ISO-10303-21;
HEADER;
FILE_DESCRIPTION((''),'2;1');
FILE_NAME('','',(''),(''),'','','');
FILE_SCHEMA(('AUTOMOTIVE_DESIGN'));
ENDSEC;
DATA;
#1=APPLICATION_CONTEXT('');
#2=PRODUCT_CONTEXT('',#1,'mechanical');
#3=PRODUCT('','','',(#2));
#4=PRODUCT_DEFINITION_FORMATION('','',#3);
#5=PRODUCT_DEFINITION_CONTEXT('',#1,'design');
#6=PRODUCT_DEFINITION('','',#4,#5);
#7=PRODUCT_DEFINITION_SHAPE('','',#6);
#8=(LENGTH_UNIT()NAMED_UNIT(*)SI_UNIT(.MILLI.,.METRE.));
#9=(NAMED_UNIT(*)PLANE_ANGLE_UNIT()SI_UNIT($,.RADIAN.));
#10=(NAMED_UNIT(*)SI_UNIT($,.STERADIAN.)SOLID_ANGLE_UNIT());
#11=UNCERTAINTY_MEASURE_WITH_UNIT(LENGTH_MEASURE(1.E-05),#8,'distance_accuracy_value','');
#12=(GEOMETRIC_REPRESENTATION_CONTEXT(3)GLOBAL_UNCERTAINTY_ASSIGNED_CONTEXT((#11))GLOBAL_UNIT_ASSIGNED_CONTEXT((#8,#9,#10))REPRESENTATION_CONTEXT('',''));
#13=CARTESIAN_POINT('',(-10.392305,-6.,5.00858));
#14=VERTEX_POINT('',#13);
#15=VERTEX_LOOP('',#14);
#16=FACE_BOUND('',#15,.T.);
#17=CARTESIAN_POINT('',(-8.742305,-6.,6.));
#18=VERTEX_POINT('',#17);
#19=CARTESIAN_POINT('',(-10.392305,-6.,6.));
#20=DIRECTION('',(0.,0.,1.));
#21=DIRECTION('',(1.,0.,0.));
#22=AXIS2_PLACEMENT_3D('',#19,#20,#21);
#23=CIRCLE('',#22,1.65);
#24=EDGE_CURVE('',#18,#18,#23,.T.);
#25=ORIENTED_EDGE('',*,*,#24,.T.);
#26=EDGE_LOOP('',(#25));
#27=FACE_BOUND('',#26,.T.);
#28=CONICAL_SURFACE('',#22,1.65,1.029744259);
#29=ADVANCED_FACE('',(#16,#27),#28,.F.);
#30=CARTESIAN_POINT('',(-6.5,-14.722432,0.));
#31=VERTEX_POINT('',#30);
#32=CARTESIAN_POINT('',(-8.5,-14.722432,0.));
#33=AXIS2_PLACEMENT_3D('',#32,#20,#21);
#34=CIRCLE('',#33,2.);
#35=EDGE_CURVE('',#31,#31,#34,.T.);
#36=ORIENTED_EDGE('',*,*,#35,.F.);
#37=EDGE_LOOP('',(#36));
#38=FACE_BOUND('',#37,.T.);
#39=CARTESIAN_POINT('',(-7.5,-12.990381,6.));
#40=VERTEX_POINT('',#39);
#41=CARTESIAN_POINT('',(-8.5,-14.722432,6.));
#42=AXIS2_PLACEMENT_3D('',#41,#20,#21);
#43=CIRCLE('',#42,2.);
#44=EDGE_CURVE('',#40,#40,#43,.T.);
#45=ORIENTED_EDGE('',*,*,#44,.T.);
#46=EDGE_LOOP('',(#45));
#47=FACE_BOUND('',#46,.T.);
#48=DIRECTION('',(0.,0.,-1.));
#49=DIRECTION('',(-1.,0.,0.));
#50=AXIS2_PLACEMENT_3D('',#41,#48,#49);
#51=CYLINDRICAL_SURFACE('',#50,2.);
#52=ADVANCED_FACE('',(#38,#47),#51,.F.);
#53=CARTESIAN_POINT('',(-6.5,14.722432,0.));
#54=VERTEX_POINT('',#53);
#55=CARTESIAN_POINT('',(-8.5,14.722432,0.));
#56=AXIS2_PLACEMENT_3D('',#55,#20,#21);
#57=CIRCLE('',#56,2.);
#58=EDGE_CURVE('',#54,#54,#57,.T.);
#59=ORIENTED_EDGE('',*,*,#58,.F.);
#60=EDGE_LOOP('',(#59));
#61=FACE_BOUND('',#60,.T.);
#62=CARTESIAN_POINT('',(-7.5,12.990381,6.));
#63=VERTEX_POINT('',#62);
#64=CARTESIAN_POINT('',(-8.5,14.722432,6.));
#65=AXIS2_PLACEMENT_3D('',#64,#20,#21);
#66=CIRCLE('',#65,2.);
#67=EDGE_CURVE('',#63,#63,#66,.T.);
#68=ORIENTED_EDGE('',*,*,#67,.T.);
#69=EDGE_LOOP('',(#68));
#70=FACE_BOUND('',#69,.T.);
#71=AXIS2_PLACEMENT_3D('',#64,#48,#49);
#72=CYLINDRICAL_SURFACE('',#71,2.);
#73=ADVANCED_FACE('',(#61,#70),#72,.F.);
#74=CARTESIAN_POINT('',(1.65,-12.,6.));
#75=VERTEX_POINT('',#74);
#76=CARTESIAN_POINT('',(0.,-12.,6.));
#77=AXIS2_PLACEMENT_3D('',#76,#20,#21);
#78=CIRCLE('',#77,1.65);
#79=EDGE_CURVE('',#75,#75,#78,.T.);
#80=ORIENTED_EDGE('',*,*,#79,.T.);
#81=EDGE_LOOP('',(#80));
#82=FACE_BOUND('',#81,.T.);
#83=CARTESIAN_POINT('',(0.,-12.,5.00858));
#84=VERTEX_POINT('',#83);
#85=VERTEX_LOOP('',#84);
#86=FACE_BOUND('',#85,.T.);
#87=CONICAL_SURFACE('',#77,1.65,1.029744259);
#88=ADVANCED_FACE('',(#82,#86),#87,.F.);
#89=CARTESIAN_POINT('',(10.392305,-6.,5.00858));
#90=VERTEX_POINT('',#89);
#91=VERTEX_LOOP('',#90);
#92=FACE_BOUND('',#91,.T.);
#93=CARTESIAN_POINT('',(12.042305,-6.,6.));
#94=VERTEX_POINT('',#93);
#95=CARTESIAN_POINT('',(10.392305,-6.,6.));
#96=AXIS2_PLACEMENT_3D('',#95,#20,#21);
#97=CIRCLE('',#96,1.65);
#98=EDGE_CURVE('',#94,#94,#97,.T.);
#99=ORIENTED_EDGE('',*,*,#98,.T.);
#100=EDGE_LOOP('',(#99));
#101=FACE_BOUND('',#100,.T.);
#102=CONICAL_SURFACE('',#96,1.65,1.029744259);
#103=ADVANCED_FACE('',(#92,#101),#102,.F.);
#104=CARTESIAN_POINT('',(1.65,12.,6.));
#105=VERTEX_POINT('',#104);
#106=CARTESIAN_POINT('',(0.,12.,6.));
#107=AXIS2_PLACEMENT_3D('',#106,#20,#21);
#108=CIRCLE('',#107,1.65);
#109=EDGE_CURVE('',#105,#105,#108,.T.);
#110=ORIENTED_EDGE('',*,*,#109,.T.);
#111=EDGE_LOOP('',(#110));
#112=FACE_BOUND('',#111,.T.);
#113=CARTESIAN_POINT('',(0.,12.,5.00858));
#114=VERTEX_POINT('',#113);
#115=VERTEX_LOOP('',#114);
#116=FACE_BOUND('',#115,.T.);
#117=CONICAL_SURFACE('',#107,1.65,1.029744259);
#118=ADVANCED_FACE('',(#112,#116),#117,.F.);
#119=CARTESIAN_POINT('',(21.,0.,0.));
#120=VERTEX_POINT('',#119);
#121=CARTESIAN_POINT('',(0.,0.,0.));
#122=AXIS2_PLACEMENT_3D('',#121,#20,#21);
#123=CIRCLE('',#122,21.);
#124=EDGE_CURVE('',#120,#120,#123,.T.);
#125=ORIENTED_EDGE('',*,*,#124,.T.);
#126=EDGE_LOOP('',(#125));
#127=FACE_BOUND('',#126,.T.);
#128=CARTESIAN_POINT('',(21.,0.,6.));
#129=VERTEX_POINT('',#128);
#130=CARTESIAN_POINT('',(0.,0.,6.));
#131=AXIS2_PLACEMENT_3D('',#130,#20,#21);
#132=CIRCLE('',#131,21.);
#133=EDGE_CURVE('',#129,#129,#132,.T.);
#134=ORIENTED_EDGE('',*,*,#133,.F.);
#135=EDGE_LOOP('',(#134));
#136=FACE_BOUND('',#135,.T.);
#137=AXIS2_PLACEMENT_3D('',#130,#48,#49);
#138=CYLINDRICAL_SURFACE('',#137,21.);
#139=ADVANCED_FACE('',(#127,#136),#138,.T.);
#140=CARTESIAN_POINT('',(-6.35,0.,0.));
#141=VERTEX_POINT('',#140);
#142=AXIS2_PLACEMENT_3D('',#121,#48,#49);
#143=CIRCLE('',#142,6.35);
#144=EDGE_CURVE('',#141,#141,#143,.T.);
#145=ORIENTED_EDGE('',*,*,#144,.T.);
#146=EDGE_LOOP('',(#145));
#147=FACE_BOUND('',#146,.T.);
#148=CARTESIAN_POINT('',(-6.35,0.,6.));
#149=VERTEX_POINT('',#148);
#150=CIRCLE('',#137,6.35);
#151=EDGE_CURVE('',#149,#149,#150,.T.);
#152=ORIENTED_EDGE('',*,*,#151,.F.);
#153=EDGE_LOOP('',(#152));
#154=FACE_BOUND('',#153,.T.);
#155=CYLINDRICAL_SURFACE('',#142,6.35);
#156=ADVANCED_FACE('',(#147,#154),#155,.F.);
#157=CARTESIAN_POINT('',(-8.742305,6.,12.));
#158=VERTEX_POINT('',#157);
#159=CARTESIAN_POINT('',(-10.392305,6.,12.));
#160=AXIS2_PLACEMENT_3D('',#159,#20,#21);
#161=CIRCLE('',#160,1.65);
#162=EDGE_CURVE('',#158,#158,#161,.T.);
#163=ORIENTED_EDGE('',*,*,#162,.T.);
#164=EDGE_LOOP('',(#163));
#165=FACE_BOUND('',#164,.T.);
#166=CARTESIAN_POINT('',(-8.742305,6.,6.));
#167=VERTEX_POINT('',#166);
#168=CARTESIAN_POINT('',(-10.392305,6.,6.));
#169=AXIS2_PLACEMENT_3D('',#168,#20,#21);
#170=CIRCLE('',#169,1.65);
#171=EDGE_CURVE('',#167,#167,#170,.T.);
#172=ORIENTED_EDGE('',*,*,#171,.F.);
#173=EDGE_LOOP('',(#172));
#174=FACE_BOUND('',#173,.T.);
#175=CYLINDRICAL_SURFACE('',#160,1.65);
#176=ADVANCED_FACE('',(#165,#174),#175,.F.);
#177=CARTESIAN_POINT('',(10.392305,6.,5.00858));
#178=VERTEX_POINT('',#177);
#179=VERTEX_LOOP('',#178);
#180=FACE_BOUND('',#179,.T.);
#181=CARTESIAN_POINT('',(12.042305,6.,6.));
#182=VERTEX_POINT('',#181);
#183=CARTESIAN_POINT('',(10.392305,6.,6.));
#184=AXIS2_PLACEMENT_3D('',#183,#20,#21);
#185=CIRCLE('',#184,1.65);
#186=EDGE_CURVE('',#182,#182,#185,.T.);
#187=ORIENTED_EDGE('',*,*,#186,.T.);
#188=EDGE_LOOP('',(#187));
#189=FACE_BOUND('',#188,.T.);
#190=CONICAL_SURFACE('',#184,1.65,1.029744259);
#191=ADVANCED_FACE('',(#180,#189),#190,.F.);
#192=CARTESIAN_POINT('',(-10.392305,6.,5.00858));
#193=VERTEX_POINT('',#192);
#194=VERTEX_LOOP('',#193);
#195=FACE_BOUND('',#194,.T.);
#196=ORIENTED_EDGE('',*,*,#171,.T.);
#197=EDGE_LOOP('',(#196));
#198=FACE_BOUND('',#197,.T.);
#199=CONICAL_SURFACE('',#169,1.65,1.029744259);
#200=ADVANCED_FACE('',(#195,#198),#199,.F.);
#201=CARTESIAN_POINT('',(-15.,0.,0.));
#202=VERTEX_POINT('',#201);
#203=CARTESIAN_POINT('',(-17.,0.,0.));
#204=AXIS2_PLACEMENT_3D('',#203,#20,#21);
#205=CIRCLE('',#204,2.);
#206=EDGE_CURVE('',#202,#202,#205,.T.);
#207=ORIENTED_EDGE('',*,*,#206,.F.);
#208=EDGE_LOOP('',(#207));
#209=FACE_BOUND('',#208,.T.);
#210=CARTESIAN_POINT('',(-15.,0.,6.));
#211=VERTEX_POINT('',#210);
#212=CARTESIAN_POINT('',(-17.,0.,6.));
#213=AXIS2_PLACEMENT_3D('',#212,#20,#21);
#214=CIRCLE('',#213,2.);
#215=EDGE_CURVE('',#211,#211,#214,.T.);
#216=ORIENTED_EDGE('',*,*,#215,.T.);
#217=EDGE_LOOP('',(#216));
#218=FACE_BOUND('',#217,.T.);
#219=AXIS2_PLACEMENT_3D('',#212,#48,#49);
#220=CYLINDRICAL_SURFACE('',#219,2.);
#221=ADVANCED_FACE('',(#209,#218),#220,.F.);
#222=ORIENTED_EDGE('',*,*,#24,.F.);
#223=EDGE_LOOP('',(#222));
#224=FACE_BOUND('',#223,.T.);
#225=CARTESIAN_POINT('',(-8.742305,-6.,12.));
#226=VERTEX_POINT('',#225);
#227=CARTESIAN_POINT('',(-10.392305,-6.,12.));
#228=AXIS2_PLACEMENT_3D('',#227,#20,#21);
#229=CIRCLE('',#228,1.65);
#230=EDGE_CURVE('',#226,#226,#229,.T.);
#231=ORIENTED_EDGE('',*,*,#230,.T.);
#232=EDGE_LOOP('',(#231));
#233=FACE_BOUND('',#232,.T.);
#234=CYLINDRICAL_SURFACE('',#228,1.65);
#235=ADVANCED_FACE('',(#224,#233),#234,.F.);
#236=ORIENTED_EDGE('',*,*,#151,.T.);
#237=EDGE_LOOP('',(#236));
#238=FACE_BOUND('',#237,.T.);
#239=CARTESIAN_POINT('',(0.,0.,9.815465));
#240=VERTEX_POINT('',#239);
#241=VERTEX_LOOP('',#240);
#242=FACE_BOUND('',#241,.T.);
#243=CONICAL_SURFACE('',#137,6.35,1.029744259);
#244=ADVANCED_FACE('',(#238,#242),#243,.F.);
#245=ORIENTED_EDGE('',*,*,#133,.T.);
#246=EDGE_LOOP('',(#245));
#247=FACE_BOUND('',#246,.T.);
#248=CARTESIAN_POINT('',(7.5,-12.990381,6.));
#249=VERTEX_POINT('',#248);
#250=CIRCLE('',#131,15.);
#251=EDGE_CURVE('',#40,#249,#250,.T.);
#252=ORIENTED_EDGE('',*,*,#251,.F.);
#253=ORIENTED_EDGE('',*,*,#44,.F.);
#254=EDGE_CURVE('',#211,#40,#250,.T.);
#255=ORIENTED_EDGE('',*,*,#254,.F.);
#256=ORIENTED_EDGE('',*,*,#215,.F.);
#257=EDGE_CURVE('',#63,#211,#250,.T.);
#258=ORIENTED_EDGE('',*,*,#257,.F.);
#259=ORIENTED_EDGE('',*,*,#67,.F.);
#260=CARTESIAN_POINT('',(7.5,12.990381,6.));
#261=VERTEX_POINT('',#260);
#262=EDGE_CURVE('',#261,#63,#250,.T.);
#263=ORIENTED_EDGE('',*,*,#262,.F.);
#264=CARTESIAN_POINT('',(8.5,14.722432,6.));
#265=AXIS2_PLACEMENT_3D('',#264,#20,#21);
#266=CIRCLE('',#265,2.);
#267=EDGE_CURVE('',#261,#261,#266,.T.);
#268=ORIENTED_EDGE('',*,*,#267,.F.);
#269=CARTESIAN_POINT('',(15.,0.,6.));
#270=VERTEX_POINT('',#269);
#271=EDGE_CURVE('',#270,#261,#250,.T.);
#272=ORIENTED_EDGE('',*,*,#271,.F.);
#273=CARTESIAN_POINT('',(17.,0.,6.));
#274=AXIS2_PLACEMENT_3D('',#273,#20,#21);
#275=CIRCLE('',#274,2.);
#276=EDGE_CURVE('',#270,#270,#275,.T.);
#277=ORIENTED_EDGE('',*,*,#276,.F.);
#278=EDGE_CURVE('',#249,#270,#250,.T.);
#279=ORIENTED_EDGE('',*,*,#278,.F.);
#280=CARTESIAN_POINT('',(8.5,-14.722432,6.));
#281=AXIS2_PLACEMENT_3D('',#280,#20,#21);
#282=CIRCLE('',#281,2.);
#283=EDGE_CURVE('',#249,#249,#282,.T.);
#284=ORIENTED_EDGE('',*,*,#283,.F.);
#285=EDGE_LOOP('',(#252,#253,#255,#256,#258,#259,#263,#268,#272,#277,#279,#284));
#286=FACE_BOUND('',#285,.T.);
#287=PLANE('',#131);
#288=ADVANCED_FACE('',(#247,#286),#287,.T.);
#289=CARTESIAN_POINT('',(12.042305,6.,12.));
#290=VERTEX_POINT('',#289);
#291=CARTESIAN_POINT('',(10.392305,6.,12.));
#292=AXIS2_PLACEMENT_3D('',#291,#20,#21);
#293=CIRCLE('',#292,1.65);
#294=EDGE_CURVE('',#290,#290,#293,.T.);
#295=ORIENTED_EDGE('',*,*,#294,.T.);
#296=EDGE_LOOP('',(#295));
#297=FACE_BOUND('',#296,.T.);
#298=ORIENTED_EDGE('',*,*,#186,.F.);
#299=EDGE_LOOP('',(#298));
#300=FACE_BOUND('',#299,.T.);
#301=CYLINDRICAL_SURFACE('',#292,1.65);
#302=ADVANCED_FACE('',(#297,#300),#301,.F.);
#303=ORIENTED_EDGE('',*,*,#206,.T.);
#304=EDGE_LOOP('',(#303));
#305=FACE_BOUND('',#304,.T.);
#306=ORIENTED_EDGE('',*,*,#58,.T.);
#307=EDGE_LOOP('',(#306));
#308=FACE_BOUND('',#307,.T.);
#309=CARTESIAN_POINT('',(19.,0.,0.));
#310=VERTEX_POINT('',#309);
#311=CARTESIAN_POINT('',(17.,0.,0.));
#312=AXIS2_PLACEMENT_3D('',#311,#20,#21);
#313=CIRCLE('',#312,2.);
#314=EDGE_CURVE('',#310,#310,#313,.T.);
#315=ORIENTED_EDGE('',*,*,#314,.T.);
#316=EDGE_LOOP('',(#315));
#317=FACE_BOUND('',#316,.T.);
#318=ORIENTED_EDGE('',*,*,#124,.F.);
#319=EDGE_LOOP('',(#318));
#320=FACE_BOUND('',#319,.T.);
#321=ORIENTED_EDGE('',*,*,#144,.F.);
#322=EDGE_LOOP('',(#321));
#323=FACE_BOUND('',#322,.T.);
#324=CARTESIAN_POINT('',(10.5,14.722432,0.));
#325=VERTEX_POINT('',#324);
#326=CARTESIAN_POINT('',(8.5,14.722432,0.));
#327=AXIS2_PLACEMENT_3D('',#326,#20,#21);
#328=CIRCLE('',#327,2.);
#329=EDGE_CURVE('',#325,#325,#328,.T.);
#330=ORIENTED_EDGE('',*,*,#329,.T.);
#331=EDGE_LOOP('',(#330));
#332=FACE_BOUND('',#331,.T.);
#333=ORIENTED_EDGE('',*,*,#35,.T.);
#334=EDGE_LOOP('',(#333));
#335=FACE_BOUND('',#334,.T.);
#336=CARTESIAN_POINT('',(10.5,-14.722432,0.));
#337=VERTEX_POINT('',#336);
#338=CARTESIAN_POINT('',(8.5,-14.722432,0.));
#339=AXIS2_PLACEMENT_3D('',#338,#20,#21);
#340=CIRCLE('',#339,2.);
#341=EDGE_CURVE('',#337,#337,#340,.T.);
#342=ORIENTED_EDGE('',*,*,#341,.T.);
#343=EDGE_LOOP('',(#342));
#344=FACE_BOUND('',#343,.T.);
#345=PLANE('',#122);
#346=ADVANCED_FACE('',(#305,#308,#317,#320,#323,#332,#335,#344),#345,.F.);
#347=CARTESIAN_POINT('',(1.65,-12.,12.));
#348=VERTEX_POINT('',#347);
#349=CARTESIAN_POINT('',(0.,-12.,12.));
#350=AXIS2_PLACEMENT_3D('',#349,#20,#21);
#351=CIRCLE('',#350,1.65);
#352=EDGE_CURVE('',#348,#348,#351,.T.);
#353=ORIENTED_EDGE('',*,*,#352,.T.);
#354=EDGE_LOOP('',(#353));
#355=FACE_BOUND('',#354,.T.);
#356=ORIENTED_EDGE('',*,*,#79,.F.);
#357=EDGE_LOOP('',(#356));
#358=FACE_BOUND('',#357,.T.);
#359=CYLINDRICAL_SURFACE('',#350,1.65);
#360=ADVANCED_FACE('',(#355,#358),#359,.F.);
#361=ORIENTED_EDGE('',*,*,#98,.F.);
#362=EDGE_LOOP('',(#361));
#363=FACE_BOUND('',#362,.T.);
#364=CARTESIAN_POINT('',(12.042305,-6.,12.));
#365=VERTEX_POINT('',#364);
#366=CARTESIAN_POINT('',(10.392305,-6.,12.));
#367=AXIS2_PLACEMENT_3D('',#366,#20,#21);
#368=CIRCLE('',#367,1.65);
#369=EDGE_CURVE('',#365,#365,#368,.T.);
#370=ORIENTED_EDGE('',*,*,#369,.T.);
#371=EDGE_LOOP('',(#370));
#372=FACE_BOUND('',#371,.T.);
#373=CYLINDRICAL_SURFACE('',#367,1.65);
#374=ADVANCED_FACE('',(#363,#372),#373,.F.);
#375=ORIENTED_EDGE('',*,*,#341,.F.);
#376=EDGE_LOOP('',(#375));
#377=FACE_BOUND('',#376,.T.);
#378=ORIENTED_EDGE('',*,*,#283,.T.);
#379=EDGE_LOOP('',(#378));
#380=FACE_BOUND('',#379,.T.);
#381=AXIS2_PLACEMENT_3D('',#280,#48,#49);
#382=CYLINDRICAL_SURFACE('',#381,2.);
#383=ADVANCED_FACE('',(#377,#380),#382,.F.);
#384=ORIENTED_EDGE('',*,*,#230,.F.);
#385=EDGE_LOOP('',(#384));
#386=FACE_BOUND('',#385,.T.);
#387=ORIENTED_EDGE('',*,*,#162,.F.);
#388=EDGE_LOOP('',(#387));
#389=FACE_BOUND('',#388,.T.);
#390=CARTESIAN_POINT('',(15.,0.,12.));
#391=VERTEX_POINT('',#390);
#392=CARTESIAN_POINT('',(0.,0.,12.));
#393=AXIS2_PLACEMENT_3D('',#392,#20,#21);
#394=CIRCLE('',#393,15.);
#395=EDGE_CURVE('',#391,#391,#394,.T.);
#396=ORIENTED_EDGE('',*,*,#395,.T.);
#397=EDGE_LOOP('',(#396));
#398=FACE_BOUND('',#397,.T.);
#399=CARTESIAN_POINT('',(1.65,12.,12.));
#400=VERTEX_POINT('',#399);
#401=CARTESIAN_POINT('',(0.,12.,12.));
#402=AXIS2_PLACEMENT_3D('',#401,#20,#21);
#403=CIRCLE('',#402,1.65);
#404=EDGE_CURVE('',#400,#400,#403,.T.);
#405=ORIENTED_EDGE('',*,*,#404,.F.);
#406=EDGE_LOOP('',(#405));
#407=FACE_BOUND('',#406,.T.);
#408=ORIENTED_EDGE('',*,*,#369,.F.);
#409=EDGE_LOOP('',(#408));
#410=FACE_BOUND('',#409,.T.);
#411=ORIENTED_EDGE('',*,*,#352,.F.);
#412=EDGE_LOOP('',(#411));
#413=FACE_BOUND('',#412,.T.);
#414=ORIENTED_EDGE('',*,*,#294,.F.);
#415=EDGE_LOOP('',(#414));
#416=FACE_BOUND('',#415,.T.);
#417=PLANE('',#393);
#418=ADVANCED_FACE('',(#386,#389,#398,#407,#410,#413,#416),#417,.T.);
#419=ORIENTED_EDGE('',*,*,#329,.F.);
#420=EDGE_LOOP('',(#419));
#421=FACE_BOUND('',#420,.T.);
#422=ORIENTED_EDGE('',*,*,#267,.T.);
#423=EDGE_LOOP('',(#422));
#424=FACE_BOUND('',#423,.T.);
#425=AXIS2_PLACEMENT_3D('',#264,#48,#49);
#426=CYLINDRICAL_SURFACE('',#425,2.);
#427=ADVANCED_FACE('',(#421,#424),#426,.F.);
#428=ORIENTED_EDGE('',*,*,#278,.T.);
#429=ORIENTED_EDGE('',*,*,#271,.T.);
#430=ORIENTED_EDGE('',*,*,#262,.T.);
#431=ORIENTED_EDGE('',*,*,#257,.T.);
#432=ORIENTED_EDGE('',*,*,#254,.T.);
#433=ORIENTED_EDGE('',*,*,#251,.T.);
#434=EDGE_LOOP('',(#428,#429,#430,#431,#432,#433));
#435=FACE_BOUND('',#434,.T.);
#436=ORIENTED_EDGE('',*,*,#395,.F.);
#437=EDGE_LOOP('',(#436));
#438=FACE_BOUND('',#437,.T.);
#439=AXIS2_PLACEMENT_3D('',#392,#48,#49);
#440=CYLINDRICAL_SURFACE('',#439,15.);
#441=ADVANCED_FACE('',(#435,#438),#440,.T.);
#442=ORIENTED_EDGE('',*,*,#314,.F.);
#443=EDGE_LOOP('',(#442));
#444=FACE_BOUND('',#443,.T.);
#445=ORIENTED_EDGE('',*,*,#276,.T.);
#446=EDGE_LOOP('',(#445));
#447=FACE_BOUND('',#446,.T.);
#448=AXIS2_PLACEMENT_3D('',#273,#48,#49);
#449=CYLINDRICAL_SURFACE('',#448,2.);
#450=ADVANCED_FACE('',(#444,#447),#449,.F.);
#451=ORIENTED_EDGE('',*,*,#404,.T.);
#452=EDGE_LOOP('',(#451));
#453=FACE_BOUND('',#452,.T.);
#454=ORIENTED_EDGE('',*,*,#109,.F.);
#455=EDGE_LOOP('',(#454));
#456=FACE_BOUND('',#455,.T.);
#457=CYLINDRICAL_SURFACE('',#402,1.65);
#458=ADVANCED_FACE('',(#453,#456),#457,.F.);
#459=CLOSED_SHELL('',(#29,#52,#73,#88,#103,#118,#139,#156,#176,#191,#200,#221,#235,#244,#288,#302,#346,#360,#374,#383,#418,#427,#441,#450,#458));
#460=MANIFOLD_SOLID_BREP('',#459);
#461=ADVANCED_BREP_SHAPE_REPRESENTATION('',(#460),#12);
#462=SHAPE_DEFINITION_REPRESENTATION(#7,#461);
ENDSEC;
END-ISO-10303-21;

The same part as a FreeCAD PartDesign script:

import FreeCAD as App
import Part
import Sketcher

V = App.Vector
Q = App.Units.Quantity

doc = App.newDocument("Part")
body = doc.addObject("PartDesign::Body", "Body")

sketch1 = doc.addObject("Sketcher::SketchObject", "Sketch")
body.addObject(sketch1)
sketch1.AttachmentSupport = (doc.XY_Plane, [""])
sketch1.MapMode = "FlatFace"
sketch1.addGeometry(Part.Circle(V(0, 0, 0), V(0, 0, 1), 21), False)
sketch1.addGeometry(Part.Circle(V(-8.5, -14.722432, 0), V(0, 0, 1), 2), False)
sketch1.addGeometry(Part.Circle(V(-17, 0, 0), V(0, 0, 1), 2), False)
sketch1.addGeometry(Part.Circle(V(8.5, -14.722432, 0), V(0, 0, 1), 2), False)
sketch1.addGeometry(Part.Circle(V(-8.5, 14.722432, 0), V(0, 0, 1), 2), False)
sketch1.addGeometry(Part.Circle(V(17, 0, 0), V(0, 0, 1), 2), False)
sketch1.addGeometry(Part.Circle(V(8.5, 14.722432, 0), V(0, 0, 1), 2), False)
sketch1.addConstraint(Sketcher.Constraint("Coincident", 0, 3, -1, 1))
sketch1.addConstraint(Sketcher.Constraint("Equal", 1, 2))
sketch1.addConstraint(Sketcher.Constraint("Equal", 2, 3))
sketch1.addConstraint(Sketcher.Constraint("Equal", 3, 4))
sketch1.addConstraint(Sketcher.Constraint("Equal", 4, 5))
sketch1.addConstraint(Sketcher.Constraint("Equal", 5, 6))
sketch1.addConstraint(Sketcher.Constraint("Symmetric", 3, 3, 4, 3, -1, 1))
sketch1.addConstraint(Sketcher.Constraint("Symmetric", 2, 3, 5, 3, -1, 1))
sketch1.addConstraint(Sketcher.Constraint("Symmetric", 1, 3, 6, 3, -1, 1))
sketch1.addConstraint(Sketcher.Constraint("Symmetric", 1, 3, 3, 3, -2))
sketch1.addConstraint(Sketcher.Constraint("PointOnObject", 2, 3, -1))
sketch1.addConstraint(Sketcher.Constraint("Diameter", 0, Q("42 mm")))
sketch1.addConstraint(Sketcher.Constraint("Diameter", 1, Q("4 mm")))
sketch1.addConstraint(Sketcher.Constraint("DistanceX", 2, 3, -1, 1, Q("17 mm")))
sketch1.addConstraint(Sketcher.Constraint("DistanceX", 1, 3, 3, 3, Q("17 mm")))
sketch1.addConstraint(Sketcher.Constraint("DistanceY", 1, 3, -1, 1, Q("14.722432 mm")))
pad1 = doc.addObject("PartDesign::Pad", "Pad")
body.addObject(pad1)
pad1.Profile = sketch1
pad1.Length = 6

sketch2 = doc.addObject("Sketcher::SketchObject", "Sketch001")
body.addObject(sketch2)
sketch2.AttachmentSupport = (doc.XY_Plane, [""])
sketch2.MapMode = "FlatFace"
sketch2.AttachmentOffset = App.Placement(V(0, 0, 6), App.Rotation())
sketch2.addGeometry(Part.Circle(V(0, 0, 0), V(0, 0, 1), 15), False)
sketch2.addConstraint(Sketcher.Constraint("Coincident", 0, 3, -1, 1))
sketch2.addConstraint(Sketcher.Constraint("Diameter", 0, Q("30 mm")))
pad2 = doc.addObject("PartDesign::Pad", "Pad001")
body.addObject(pad2)
pad2.Profile = sketch2
pad2.Length = 6

sketch3 = doc.addObject("Sketcher::SketchObject", "Sketch002")
body.addObject(sketch3)
sketch3.AttachmentSupport = (doc.XY_Plane, [""])
sketch3.MapMode = "FlatFace"
sketch3.AttachmentOffset = App.Placement(V(0, 0, 12), App.Rotation())
sketch3.addGeometry(Part.Circle(V(-10.392305, -6, 0), V(0, 0, 1), 1.65), False)
sketch3.addGeometry(Part.Circle(V(-10.392305, 6, 0), V(0, 0, 1), 1.65), False)
sketch3.addGeometry(Part.Circle(V(0, 12, 0), V(0, 0, 1), 1.65), False)
sketch3.addGeometry(Part.Circle(V(10.392305, 6, 0), V(0, 0, 1), 1.65), False)
sketch3.addGeometry(Part.Circle(V(10.392305, -6, 0), V(0, 0, 1), 1.65), False)
sketch3.addGeometry(Part.Circle(V(0, -12, 0), V(0, 0, 1), 1.65), False)
sketch3.addConstraint(Sketcher.Constraint("Equal", 0, 1))
sketch3.addConstraint(Sketcher.Constraint("Equal", 1, 2))
sketch3.addConstraint(Sketcher.Constraint("Equal", 2, 3))
sketch3.addConstraint(Sketcher.Constraint("Equal", 3, 4))
sketch3.addConstraint(Sketcher.Constraint("Equal", 4, 5))
sketch3.addConstraint(Sketcher.Constraint("Symmetric", 0, 3, 3, 3, -1, 1))
sketch3.addConstraint(Sketcher.Constraint("Symmetric", 1, 3, 4, 3, -1, 1))
sketch3.addConstraint(Sketcher.Constraint("Symmetric", 2, 3, 5, 3, -1, 1))
sketch3.addConstraint(Sketcher.Constraint("Symmetric", 1, 3, 3, 3, -2))
sketch3.addConstraint(Sketcher.Constraint("PointOnObject", 2, 3, -2))
sketch3.addConstraint(Sketcher.Constraint("Diameter", 0, Q("3.3 mm")))
sketch3.addConstraint(Sketcher.Constraint("DistanceY", 0, 3, -1, 1, Q("6 mm")))
sketch3.addConstraint(Sketcher.Constraint("DistanceY", -1, 1, 2, 3, Q("12 mm")))
sketch3.addConstraint(Sketcher.Constraint("DistanceX", 1, 3, 3, 3, Q("20.78461 mm")))
doc.recompute()
hole = doc.addObject("PartDesign::Hole", "Hole")
body.addObject(hole)
hole.Profile = sketch3
hole.ThreadType = "None"
hole.Diameter = 3.3
hole.DepthType = "Dimension"
hole.Depth = 6
hole.DrillPoint = "Angled"
hole.DrillPointAngle = 118

sketch4 = doc.addObject("Sketcher::SketchObject", "Sketch003")
body.addObject(sketch4)
sketch4.AttachmentSupport = (doc.XY_Plane, [""])
sketch4.MapMode = "FlatFace"
sketch4.addGeometry(Part.Circle(V(0, 0, 0), V(0, 0, 1), 6.35), False)
sketch4.addConstraint(Sketcher.Constraint("Coincident", 0, 3, -1, 1))
sketch4.addConstraint(Sketcher.Constraint("Diameter", 0, Q("12.7 mm")))
doc.recompute()
hole2 = doc.addObject("PartDesign::Hole", "Hole001")
body.addObject(hole2)
hole2.Profile = sketch4
hole2.ThreadType = "None"
hole2.Diameter = 12.7
hole2.DepthType = "Dimension"
hole2.Depth = 6
hole2.DrillPoint = "Angled"
hole2.DrillPointAngle = 118
hole2.Reversed = True

doc.recompute()
